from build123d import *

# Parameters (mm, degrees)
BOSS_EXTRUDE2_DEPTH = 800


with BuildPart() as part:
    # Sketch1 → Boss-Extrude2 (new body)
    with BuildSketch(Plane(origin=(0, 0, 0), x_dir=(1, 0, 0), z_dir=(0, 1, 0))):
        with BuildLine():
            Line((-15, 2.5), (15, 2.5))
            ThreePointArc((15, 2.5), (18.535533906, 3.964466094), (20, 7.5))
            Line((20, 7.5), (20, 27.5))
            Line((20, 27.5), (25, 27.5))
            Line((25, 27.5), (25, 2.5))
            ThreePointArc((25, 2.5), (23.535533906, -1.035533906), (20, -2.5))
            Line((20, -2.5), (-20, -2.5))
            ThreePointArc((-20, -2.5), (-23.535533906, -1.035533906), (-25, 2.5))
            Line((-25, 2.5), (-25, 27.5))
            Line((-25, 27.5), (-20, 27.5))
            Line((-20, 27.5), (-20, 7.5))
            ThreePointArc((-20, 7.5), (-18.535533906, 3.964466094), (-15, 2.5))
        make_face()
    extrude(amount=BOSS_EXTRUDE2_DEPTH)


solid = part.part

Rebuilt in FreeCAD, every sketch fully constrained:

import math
import FreeCAD as App
import Part
import Sketcher
Q = App.Units.Quantity

doc = App.newDocument("Part")
body = doc.addObject("PartDesign::Body", "Body")

sketch1 = body.newObject("Sketcher::SketchObject", "Sketch")
sketch1.AttachmentSupport = (doc.getObject("XZ_Plane"), [""])
sketch1.MapMode = "FlatFace"
sketch1.addGeometry(Part.LineSegment(App.Vector(15, -2, 0), App.Vector(-15, -2, 0)), False)
sketch1.addGeometry(Part.ArcOfCircle(Part.Circle(App.Vector(-15, -8, 0), App.Vector(0, 0, 1), 5), math.radians(90), math.radians(180)), False)
sketch1.addGeometry(Part.LineSegment(App.Vector(-20, -8, 0), App.Vector(-20, -28, 0)), False)
sketch1.addGeometry(Part.LineSegment(App.Vector(-20, -28, 0), App.Vector(-25, -28, 0)), False)
sketch1.addGeometry(Part.LineSegment(App.Vector(-25, -28, 0), App.Vector(-25, -2, 0)), False)
sketch1.addGeometry(Part.ArcOfCircle(Part.Circle(App.Vector(-20, -2, 0), App.Vector(0, 0, 1), 5), math.radians(90), math.radians(180)), False)
sketch1.addGeometry(Part.LineSegment(App.Vector(-20, 2, 0), App.Vector(20, 2, 0)), False)
sketch1.addGeometry(Part.ArcOfCircle(Part.Circle(App.Vector(20, -2, 0), App.Vector(0, 0, 1), 5), math.radians(0), math.radians(90)), False)
sketch1.addGeometry(Part.LineSegment(App.Vector(25, -2, 0), App.Vector(25, -28, 0)), False)
sketch1.addGeometry(Part.LineSegment(App.Vector(25, -28, 0), App.Vector(20, -28, 0)), False)
sketch1.addGeometry(Part.LineSegment(App.Vector(20, -28, 0), App.Vector(20, -8, 0)), False)
sketch1.addGeometry(Part.ArcOfCircle(Part.Circle(App.Vector(15, -8, 0), App.Vector(0, 0, 1), 5), math.radians(0), math.radians(90)), False)
sketch1.addConstraint(Sketcher.Constraint("Tangent", 0, 2, 1, 1))
sketch1.addConstraint(Sketcher.Constraint("Tangent", 1, 2, 2, 1))
sketch1.addConstraint(Sketcher.Constraint("Coincident", 2, 2, 3, 1))
sketch1.addConstraint(Sketcher.Constraint("Coincident", 3, 2, 4, 1))
sketch1.addConstraint(Sketcher.Constraint("Tangent", 4, 2, 5, 2))
sketch1.addConstraint(Sketcher.Constraint("Tangent", 5, 1, 6, 1))
sketch1.addConstraint(Sketcher.Constraint("Tangent", 6, 2, 7, 2))
sketch1.addConstraint(Sketcher.Constraint("Tangent", 7, 1, 8, 1))
sketch1.addConstraint(Sketcher.Constraint("Coincident", 8, 2, 9, 1))
sketch1.addConstraint(Sketcher.Constraint("Coincident", 9, 2, 10, 1))
sketch1.addConstraint(Sketcher.Constraint("Tangent", 10, 2, 11, 1))
sketch1.addConstraint(Sketcher.Constraint("Tangent", 11, 2, 0, 1))
sketch1.addConstraint(Sketcher.Constraint("Horizontal", 0))
sketch1.addConstraint(Sketcher.Constraint("Vertical", 2))
sketch1.addConstraint(Sketcher.Constraint("Horizontal", 3))
sketch1.addConstraint(Sketcher.Constraint("Vertical", 4))
sketch1.addConstraint(Sketcher.Constraint("Horizontal", 6))
sketch1.addConstraint(Sketcher.Constraint("Vertical", 8))
sketch1.addConstraint(Sketcher.Constraint("Horizontal", 9))
sketch1.addConstraint(Sketcher.Constraint("Vertical", 10))
sketch1.addConstraint(Sketcher.Constraint("Equal", 1, 5))
sketch1.addConstraint(Sketcher.Constraint("Equal", 5, 7))
sketch1.addConstraint(Sketcher.Constraint("Equal", 7, 11))
sketch1.addConstraint(Sketcher.Constraint("Symmetric", 3, 2, 8, 2, -2))
sketch1.addConstraint(Sketcher.Constraint("Horizontal", 7, 3, 0, 2))
sketch1.addConstraint(Sketcher.Constraint("Vertical", 5, 3, 1, 2))
sketch1.addConstraint(Sketcher.Constraint("Vertical", 6, 2, 9, 2))
sketch1.addConstraint(Sketcher.Constraint("Radius", 1, Q("5 mm")))
sketch1.addConstraint(Sketcher.Constraint("DistanceX", 0, 2, 0, 1, Q("30 mm")))
sketch1.addConstraint(Sketcher.Constraint("DistanceY", 2, 2, 2, 1, Q("20 mm")))
sketch1.addConstraint(Sketcher.Constraint("DistanceY", 1, 3, -1, 1, Q("7.5 mm")))
pad1 = body.newObject("PartDesign::Pad", "Pad")
pad1.Profile = sketch1
pad1.Length = 800
pad1.Reversed = True

doc.recompute()
